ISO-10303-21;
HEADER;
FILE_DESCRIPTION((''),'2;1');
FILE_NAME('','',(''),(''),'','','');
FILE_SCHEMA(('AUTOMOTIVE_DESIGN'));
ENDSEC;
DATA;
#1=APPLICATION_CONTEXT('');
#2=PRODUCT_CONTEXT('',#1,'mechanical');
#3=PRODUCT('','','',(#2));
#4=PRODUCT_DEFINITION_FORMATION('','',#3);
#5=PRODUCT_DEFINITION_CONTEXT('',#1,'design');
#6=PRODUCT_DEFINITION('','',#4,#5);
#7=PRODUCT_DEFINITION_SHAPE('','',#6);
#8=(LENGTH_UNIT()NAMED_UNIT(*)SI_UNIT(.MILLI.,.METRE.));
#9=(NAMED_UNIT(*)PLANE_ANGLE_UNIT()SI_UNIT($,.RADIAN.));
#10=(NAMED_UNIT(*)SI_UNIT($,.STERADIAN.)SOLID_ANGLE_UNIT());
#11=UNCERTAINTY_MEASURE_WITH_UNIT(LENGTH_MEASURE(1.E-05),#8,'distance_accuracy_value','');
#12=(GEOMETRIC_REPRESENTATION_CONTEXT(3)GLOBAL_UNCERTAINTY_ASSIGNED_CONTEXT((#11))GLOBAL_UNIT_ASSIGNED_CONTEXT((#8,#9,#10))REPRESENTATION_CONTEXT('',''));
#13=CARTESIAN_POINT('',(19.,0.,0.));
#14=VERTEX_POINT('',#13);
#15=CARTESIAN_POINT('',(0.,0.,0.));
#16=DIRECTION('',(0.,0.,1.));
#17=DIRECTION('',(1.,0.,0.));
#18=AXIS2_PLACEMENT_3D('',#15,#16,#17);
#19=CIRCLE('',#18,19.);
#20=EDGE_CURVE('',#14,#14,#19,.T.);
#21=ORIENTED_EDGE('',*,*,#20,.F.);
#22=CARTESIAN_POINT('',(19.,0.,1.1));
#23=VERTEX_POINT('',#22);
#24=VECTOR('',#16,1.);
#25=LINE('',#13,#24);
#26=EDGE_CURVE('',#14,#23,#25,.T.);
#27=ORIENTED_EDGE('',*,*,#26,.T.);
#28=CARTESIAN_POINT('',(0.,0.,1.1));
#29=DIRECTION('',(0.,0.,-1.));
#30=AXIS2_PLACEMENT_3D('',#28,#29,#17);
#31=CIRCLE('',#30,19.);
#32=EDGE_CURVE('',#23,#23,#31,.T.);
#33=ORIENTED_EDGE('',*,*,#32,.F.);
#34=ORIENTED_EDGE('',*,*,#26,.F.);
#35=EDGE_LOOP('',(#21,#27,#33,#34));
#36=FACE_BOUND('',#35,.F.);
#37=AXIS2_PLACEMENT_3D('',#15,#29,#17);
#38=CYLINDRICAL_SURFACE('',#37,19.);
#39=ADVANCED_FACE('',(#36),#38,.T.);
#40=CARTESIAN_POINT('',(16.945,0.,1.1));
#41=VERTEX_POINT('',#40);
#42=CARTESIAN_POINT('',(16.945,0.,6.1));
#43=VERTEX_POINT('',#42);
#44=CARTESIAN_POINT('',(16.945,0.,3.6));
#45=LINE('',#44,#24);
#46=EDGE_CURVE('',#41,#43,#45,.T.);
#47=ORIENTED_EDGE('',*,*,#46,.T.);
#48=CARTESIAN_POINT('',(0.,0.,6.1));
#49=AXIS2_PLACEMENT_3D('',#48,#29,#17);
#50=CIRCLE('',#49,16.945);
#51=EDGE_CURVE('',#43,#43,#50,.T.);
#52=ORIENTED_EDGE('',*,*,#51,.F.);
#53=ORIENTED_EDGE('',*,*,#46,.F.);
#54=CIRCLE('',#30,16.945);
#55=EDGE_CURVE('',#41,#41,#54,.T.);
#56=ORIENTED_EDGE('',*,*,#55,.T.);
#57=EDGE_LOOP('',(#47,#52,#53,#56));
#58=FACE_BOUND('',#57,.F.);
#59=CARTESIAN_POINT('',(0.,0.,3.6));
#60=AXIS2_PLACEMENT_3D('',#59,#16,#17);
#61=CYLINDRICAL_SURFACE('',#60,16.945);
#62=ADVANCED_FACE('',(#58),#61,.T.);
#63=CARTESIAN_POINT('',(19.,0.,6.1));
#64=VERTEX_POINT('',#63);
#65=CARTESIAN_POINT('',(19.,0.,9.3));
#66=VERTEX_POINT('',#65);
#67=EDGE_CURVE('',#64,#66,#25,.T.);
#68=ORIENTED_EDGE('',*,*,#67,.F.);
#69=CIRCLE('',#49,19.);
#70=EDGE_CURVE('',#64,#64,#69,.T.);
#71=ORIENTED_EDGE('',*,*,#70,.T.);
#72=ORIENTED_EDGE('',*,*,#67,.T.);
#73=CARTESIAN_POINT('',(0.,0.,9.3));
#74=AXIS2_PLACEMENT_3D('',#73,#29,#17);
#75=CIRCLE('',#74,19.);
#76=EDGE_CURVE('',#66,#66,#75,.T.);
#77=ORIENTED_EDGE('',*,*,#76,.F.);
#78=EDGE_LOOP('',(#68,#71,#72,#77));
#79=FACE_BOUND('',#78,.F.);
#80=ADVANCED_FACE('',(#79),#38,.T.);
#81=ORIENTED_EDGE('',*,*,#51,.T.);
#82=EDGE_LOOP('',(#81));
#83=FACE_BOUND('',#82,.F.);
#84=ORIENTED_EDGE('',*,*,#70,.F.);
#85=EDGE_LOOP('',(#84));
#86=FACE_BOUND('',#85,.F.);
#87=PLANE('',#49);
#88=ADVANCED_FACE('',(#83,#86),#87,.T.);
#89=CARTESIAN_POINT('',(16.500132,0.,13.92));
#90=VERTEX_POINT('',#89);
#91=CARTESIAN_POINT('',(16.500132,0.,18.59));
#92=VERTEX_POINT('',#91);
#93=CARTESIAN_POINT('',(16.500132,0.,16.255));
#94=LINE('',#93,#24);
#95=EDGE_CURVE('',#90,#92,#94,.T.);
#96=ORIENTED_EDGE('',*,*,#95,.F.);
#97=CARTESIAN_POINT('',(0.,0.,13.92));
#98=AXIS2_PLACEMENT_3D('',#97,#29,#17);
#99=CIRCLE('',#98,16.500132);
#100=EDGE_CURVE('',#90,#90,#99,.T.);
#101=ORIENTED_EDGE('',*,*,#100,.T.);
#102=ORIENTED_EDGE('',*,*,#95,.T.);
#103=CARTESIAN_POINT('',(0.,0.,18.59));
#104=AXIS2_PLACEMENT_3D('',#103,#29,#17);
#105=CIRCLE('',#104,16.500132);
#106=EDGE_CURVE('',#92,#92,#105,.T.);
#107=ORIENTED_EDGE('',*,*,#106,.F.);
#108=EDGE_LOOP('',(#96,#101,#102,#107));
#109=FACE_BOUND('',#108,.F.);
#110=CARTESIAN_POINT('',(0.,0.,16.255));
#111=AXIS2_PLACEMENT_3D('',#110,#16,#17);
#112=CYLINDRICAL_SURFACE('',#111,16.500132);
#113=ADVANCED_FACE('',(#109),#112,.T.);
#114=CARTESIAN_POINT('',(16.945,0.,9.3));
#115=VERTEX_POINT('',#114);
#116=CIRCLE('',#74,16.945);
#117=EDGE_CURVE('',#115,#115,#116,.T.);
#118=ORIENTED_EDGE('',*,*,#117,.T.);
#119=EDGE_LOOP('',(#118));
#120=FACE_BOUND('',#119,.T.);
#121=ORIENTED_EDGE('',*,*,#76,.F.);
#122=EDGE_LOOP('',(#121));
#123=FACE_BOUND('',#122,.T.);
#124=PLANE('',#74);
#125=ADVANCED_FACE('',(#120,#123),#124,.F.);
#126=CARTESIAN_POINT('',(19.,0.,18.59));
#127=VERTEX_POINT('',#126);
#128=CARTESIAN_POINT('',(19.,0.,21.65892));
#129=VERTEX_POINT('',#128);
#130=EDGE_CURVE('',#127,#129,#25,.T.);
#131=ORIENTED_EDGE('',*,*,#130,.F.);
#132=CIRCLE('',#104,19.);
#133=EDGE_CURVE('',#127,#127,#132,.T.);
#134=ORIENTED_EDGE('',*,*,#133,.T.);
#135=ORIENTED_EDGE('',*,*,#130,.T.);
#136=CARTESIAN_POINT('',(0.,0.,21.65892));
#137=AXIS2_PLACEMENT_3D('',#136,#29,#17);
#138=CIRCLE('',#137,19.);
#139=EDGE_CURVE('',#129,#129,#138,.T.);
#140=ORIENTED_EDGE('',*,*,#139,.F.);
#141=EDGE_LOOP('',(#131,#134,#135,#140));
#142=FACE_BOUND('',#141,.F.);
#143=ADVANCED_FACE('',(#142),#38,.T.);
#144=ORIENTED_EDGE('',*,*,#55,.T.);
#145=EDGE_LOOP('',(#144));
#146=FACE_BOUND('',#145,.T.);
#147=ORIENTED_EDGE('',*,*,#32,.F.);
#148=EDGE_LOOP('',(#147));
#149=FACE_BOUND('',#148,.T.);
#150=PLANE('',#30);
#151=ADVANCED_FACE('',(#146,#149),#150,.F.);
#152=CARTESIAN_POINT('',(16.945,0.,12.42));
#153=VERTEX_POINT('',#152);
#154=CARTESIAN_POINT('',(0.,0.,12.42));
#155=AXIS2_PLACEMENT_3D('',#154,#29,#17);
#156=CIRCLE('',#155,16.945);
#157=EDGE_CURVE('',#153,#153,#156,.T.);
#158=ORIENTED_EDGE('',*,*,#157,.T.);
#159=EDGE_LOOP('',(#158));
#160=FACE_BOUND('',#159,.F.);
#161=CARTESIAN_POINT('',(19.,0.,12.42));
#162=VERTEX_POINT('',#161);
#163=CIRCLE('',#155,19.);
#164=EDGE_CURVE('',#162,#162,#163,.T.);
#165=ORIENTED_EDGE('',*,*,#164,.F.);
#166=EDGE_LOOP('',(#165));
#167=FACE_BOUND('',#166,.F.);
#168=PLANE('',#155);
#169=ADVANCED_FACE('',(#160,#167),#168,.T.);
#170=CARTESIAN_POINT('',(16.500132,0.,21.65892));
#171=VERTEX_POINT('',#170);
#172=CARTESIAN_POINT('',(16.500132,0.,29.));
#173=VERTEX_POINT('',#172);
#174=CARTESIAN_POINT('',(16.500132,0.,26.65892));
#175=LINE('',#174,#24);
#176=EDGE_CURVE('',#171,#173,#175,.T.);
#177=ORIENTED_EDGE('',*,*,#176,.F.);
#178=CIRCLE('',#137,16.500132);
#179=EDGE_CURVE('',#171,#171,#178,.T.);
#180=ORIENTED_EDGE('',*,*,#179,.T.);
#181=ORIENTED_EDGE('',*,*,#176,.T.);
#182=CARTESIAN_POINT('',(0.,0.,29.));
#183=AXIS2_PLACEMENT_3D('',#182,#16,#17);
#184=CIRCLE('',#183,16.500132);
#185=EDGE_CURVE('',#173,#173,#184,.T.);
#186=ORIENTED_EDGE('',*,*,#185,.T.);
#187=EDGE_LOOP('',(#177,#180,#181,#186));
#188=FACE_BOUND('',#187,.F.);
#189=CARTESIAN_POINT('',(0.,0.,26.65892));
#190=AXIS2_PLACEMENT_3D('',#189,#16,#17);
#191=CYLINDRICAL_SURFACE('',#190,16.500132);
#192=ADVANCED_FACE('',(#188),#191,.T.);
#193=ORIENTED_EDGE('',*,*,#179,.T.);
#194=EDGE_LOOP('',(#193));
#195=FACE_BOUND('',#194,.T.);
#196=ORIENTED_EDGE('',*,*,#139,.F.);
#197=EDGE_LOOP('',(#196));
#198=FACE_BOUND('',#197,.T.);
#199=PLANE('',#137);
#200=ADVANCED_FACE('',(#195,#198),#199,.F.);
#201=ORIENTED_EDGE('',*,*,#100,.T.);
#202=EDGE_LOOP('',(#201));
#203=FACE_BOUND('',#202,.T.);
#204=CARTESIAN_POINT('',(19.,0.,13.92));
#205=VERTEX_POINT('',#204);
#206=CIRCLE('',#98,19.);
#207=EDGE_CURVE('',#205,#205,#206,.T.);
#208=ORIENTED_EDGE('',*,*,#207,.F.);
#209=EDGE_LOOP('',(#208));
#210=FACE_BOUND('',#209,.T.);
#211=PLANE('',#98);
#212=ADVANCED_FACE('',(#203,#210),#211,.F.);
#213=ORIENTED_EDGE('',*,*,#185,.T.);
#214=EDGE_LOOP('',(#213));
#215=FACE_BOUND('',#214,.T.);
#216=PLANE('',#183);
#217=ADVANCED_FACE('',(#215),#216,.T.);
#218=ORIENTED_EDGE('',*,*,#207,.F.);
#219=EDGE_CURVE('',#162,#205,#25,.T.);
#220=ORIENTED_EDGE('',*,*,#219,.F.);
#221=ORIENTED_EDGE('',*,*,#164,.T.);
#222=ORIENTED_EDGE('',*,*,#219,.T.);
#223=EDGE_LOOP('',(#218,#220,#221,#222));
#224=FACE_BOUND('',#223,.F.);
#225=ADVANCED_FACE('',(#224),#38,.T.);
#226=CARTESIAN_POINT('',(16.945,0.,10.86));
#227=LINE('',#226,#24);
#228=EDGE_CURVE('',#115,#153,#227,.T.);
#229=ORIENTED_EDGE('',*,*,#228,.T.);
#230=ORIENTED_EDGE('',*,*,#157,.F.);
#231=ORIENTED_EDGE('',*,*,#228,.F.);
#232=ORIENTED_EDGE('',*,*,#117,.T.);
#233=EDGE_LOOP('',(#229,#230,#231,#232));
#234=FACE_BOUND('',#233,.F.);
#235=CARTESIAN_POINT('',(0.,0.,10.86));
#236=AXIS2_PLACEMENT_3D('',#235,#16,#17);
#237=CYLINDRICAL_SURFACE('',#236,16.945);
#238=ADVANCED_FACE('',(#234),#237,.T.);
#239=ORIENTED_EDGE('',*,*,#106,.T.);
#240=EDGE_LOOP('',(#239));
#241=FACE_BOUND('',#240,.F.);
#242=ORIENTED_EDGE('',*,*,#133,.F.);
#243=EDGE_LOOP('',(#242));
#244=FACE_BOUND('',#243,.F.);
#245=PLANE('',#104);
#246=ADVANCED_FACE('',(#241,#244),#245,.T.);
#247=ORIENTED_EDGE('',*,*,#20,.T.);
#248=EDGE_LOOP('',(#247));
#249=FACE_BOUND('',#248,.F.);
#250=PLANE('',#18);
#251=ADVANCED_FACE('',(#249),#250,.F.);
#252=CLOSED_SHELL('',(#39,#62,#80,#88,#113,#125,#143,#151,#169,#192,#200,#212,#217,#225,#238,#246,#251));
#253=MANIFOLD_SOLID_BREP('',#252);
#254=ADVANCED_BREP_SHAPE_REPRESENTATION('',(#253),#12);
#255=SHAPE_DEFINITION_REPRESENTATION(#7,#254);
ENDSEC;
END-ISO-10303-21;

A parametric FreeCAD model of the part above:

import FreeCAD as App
import Part
import Sketcher

V = App.Vector
Q = App.Units.Quantity

doc = App.newDocument("Part")
body = doc.addObject("PartDesign::Body", "Body")

# Sketch on XY plane
sketch1 = body.newObject("Sketcher::SketchObject", "Sketch")
sketch1.AttachmentSupport = (doc.getObject("XY_Plane"), [""])
sketch1.MapMode = "FlatFace"
sketch1.addGeometry(Part.Circle(V(0, 0, 0), V(0, 0, 1), 19), False)
sketch1.addConstraint(Sketcher.Constraint("Coincident", 0, 3, -1, 1))
sketch1.addConstraint(Sketcher.Constraint("Diameter", 0, Q("38 mm")))
pad1 = body.newObject("PartDesign::Pad", "Pad")
pad1.Profile = sketch1
pad1.Length = 29

# Sketch on XZ plane
sketch2 = body.newObject("Sketcher::SketchObject", "Sketch001")
sketch2.AttachmentSupport = (doc.getObject("XZ_Plane"), [""])
sketch2.MapMode = "FlatFace"
sketch2.addGeometry(Part.LineSegment(V(16.945, 6.1, 0), V(16.945, 1.1, 0)), False)
sketch2.addGeometry(Part.LineSegment(V(16.945, 1.1, 0), V(30, 1.1, 0)), False)
sketch2.addGeometry(Part.LineSegment(V(30, 1.1, 0), V(30, 6.1, 0)), False)
sketch2.addGeometry(Part.LineSegment(V(30, 6.1, 0), V(16.945, 6.1, 0)), False)
sketch2.addGeometry(Part.LineSegment(V(16.945, 12.42, 0), V(16.945, 9.3, 0)), False)
sketch2.addGeometry(Part.LineSegment(V(16.945, 9.3, 0), V(30, 9.3, 0)), False)
sketch2.addGeometry(Part.LineSegment(V(30, 9.3, 0), V(30, 12.42, 0)), False)
sketch2.addGeometry(Part.LineSegment(V(30, 12.42, 0), V(16.945, 12.42, 0)), False)
sketch2.addGeometry(Part.LineSegment(V(16.500132, 18.59, 0), V(16.500132, 13.92, 0)), False)
sketch2.addGeometry(Part.LineSegment(V(16.500132, 13.92, 0), V(30, 13.92, 0)), False)
sketch2.addGeometry(Part.LineSegment(V(30, 13.92, 0), V(30, 18.59, 0)), False)
sketch2.addGeometry(Part.LineSegment(V(30, 18.59, 0), V(16.500132, 18.59, 0)), False)
sketch2.addGeometry(Part.LineSegment(V(16.500132, 31.65892, 0), V(16.500132, 21.65892, 0)), False)
sketch2.addGeometry(Part.LineSegment(V(16.500132, 21.65892, 0), V(30.401605, 21.65892, 0)), False)
sketch2.addGeometry(Part.LineSegment(V(30.401605, 21.65892, 0), V(30.401605, 31.65892, 0)), False)
sketch2.addGeometry(Part.LineSegment(V(30.401605, 31.65892, 0), V(16.500132, 31.65892, 0)), False)
sketch2.addConstraint(Sketcher.Constraint("Coincident", 0, 2, 1, 1))
sketch2.addConstraint(Sketcher.Constraint("Coincident", 1, 2, 2, 1))
sketch2.addConstraint(Sketcher.Constraint("Coincident", 2, 2, 3, 1))
sketch2.addConstraint(Sketcher.Constraint("Coincident", 3, 2, 0, 1))
sketch2.addConstraint(Sketcher.Constraint("Coincident", 4, 2, 5, 1))
sketch2.addConstraint(Sketcher.Constraint("Coincident", 5, 2, 6, 1))
sketch2.addConstraint(Sketcher.Constraint("Coincident", 6, 2, 7, 1))
sketch2.addConstraint(Sketcher.Constraint("Coincident", 7, 2, 4, 1))
sketch2.addConstraint(Sketcher.Constraint("Coincident", 8, 2, 9, 1))
sketch2.addConstraint(Sketcher.Constraint("Coincident", 9, 2, 10, 1))
sketch2.addConstraint(Sketcher.Constraint("Coincident", 10, 2, 11, 1))
sketch2.addConstraint(Sketcher.Constraint("Coincident", 11, 2, 8, 1))
sketch2.addConstraint(Sketcher.Constraint("Coincident", 12, 2, 13, 1))
sketch2.addConstraint(Sketcher.Constraint("Coincident", 13, 2, 14, 1))
sketch2.addConstraint(Sketcher.Constraint("Coincident", 14, 2, 15, 1))
sketch2.addConstraint(Sketcher.Constraint("Coincident", 15, 2, 12, 1))
sketch2.addConstraint(Sketcher.Constraint("Vertical", 0))
sketch2.addConstraint(Sketcher.Constraint("Horizontal", 1))
sketch2.addConstraint(Sketcher.Constraint("Vertical", 2))
sketch2.addConstraint(Sketcher.Constraint("Horizontal", 3))
sketch2.addConstraint(Sketcher.Constraint("Vertical", 4))
sketch2.addConstraint(Sketcher.Constraint("Horizontal", 5))
sketch2.addConstraint(Sketcher.Constraint("Vertical", 6))
sketch2.addConstraint(Sketcher.Constraint("Horizontal", 7))
sketch2.addConstraint(Sketcher.Constraint("Vertical", 8))
sketch2.addConstraint(Sketcher.Constraint("Horizontal", 9))
sketch2.addConstraint(Sketcher.Constraint("Vertical", 10))
sketch2.addConstraint(Sketcher.Constraint("Horizontal", 11))
sketch2.addConstraint(Sketcher.Constraint("Vertical", 12))
sketch2.addConstraint(Sketcher.Constraint("Horizontal", 13))
sketch2.addConstraint(Sketcher.Constraint("Vertical", 14))
sketch2.addConstraint(Sketcher.Constraint("Horizontal", 15))
sketch2.addConstraint(Sketcher.Constraint("Vertical", 3, 2, 4, 2))
sketch2.addConstraint(Sketcher.Constraint("Vertical", 2, 2, 5, 2))
sketch2.addConstraint(Sketcher.Constraint("Vertical", 6, 2, 9, 2))
sketch2.addConstraint(Sketcher.Constraint("Vertical", 11, 2, 12, 2))
sketch2.addConstraint(Sketcher.Constraint("DistanceY", 0, 2, 0, 1, Q("5 mm")))
sketch2.addConstraint(Sketcher.Constraint("DistanceY", 12, 2, 12, 1, Q("10 mm")))
sketch2.addConstraint(Sketcher.Constraint("DistanceX", -1, 1, 1, 2, Q("30 mm")))
sketch2.addConstraint(Sketcher.Constraint("DistanceY", 4, 2, 4, 1, Q("3.12 mm")))
sketch2.addConstraint(Sketcher.Constraint("DistanceY", 8, 2, 8, 1, Q("4.67 mm")))
sketch2.addConstraint(Sketcher.Constraint("DistanceY", -1, 1, 0, 2, Q("1.1 mm")))
sketch2.addConstraint(Sketcher.Constraint("DistanceY", -1, 1, 4, 2, Q("9.3 mm")))
sketch2.addConstraint(Sketcher.Constraint("DistanceY", 7, 2, 8, 2, Q("1.5 mm")))
sketch2.addConstraint(Sketcher.Constraint("DistanceX", 1, 1, 1, 2, Q("13.055 mm")))
sketch2.addConstraint(Sketcher.Constraint("DistanceX", 9, 1, 9, 2, Q("13.499867 mm")))
sketch2.addConstraint(Sketcher.Constraint("DistanceX", 13, 1, 13, 2, Q("13.901473 mm")))
sketch2.addConstraint(Sketcher.Constraint("DistanceY", -1, 1, 12, 2, Q("21.65892 mm")))
groove = body.newObject("PartDesign::Groove", "Groove")
groove.Profile = sketch2
groove.ReferenceAxis = (sketch2, ["V_Axis"])
groove.Angle = 360

doc.recompute()
